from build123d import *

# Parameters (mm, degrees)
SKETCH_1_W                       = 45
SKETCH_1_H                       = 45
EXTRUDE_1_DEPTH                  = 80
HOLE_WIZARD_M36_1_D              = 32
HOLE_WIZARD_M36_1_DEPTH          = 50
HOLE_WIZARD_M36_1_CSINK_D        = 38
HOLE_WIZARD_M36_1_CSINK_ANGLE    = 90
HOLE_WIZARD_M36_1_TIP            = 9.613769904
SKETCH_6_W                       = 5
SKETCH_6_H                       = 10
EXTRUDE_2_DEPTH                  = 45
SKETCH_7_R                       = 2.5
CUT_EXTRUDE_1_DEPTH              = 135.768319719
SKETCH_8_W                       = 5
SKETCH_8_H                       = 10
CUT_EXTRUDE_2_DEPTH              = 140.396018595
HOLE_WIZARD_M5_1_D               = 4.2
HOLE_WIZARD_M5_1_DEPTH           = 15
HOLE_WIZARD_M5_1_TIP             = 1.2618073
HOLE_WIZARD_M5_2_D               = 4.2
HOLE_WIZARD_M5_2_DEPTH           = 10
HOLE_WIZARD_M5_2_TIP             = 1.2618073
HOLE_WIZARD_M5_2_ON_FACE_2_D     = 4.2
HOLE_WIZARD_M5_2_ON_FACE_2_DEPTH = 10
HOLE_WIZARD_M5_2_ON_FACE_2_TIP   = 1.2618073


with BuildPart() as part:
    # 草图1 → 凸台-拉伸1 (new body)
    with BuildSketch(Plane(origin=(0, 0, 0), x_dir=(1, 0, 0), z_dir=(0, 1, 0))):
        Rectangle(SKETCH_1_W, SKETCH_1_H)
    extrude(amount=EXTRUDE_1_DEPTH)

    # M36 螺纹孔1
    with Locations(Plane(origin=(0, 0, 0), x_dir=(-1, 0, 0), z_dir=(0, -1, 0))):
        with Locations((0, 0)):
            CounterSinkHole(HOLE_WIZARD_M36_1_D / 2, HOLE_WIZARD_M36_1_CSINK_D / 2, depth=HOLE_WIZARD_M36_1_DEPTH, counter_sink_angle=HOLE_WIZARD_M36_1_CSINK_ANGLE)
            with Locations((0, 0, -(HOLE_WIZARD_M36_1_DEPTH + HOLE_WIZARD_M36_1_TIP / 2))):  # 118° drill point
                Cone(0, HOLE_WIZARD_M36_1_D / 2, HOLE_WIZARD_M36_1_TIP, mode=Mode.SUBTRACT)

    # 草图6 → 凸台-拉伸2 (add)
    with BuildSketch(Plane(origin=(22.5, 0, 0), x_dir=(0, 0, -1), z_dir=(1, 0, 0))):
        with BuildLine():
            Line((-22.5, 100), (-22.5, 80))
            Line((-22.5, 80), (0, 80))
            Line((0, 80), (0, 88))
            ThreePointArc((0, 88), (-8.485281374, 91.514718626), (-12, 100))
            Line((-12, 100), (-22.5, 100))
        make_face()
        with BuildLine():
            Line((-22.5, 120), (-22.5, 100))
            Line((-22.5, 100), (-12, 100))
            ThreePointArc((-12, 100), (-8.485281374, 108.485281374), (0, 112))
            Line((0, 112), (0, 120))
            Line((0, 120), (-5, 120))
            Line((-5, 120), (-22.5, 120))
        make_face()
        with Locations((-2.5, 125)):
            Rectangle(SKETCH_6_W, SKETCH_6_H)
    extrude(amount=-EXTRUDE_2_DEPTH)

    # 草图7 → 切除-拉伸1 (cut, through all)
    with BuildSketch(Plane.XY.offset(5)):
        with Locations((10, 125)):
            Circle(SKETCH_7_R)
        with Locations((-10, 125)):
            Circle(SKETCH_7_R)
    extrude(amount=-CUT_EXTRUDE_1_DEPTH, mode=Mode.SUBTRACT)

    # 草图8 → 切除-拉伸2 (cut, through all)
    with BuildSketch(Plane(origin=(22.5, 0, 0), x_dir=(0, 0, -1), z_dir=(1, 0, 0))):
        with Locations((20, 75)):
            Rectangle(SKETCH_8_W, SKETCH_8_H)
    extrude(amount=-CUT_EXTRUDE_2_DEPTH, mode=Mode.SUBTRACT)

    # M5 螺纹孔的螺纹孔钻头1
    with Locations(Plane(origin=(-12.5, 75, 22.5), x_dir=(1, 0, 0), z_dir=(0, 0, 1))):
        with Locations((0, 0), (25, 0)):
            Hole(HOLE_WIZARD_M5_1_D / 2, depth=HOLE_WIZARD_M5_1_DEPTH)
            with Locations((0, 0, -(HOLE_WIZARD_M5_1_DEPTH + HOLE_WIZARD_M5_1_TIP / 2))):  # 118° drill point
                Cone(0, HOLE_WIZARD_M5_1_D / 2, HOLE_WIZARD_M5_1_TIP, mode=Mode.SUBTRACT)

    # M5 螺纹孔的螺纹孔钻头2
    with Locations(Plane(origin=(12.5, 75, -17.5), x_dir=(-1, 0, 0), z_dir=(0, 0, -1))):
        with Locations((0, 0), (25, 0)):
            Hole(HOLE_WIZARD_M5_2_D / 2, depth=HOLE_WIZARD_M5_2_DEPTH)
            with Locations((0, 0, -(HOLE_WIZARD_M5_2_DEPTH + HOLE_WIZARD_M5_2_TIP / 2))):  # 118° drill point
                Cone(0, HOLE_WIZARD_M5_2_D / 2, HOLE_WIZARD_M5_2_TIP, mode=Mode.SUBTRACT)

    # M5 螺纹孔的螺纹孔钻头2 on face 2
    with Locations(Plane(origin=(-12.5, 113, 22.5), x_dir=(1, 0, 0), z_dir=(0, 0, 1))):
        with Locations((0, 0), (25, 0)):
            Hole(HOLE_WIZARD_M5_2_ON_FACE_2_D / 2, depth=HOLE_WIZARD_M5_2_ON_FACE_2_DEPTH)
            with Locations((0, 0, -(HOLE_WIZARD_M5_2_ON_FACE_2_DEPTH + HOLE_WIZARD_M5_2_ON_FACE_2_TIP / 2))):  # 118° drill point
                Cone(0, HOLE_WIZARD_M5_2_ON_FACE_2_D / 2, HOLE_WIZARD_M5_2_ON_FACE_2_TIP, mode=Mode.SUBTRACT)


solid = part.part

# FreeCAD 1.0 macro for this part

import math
import FreeCAD as App
import Part
import Sketcher

V = App.Vector


def add_polygon(sketch, points):
    """Adds a closed chain of lines whose ends are joined by coincident constraints."""
    first, n = sketch.GeometryCount, len(points)
    for a, b in zip(points, points[1:] + points[:1]):
        sketch.addGeometry(Part.LineSegment(App.Vector(*a, 0), App.Vector(*b, 0)), False)
    for i in range(n):
        sketch.addConstraint(Sketcher.Constraint("Coincident", first + i, 2, first + (i + 1) % n, 1))

doc = App.newDocument("Part")
params = doc.addObject("Spreadsheet::Sheet", "Params")
for row, (alias, value) in enumerate([
    ("sketch1_width", "45 mm"),
    ("pad1_length", "80 mm"),
    ("sketch2_diameter", "32 mm"),
    ("hole_diameter", "32 mm"),
    ("hole_depth", "50 mm"),
    ("hole_csink_diameter", "38 mm"),
    ("sketch3_radius", "12 mm"),
    ("sketch3_width", "8 mm"),
    ("sketch3_width2", "18 mm"),
    ("sketch3_width3", "10 mm"),
    ("sketch3_height", "5 mm"),
    ("pad2_length", "45 mm"),
    ("sketch4_diameter", "5 mm"),
    ("sketch5_width", "10 mm"),
    ("sketch5_height", "5 mm"),
    ("sketch6_diameter", "4.2 mm"),
    ("hole2_diameter", "4.2 mm"),
    ("hole2_depth", "15 mm"),
    ("sketch7_diameter", "4.2 mm"),
    ("hole3_diameter", "4.2 mm"),
    ("hole3_depth", "10 mm"),
    ("sketch8_diameter", "4.2 mm"),
    ("hole4_diameter", "4.2 mm"),
    ("hole4_depth", "10 mm"),
], start=1):
    params.set(f"A{row}", alias)
    params.set(f"B{row}", "=" + value)
    params.setAlias(f"B{row}", alias)

body = doc.addObject("PartDesign::Body", "Body")

sketch1 = body.newObject("Sketcher::SketchObject", "Sketch")
sketch1.AttachmentSupport = (doc.getObject("XZ_Plane"), [""])
sketch1.MapMode = "FlatFace"
add_polygon(sketch1, [(-22, -22), (-22, 22), (22, 22), (22, -22)])
sketch1.addConstraint([
    Sketcher.Constraint("Vertical", 0),
    Sketcher.Constraint("Horizontal", 1),
    Sketcher.Constraint("Vertical", 2),
    Sketcher.Constraint("Horizontal", 3),
    Sketcher.Constraint("Symmetric", 0, 2, 2, 2, -1, 1),
    Sketcher.Constraint("Equal", 3, 0),
    Sketcher.Constraint("DistanceX", 1, 1, 1, 2, 45.0),
])
sketch1.setExpression("Constraints[10]", "Params.sketch1_width")
pad1 = body.newObject("PartDesign::Pad", "Pad")
pad1.Profile = sketch1
pad1.setExpression("Length", "Params.pad1_length")
pad1.Reversed = True

sketch2 = body.newObject("Sketcher::SketchObject", "Sketch001")
sketch2.AttachmentSupport = (doc.getObject("XZ_Plane"), [""])
sketch2.MapMode = "FlatFace"
sketch2.addGeometry(Part.Circle(V(0, 0, 0), V(0, 0, 1), 16), False)
sketch2.addConstraint([
    Sketcher.Constraint("Coincident", 0, 3, -1, 1),
    Sketcher.Constraint("Diameter", 0, 32.0),
])
sketch2.setExpression("Constraints[1]", "Params.sketch2_diameter")
doc.recompute()
hole = body.newObject("PartDesign::Hole", "Hole")
hole.Profile = sketch2
hole.ThreadType = "None"
hole.setExpression("Diameter", "Params.hole_diameter")
hole.DepthType = "Dimension"
hole.setExpression("Depth", "Params.hole_depth")
hole.DrillPoint = "Angled"
hole.DrillPointAngle = 118
hole.HoleCutType = "Countersink"
hole.setExpression("HoleCutDiameter", "Params.hole_csink_diameter")
hole.HoleCutCountersinkAngle = 90

sketch3 = body.newObject("Sketcher::SketchObject", "Sketch002")
sketch3.AttachmentSupport = (doc.getObject("YZ_Plane"), [""])
sketch3.MapMode = "FlatFace"
sketch3.AttachmentOffset = App.Placement(V(0, 0, 22.5), App.Rotation())
sketch3.addGeometry([
    Part.LineSegment(V(80, 22, 0), V(80, 0, 0)),
    Part.LineSegment(V(80, 0, 0), V(88, 0, 0)),
    Part.ArcOfCircle(Part.Circle(V(100, 0, 0), V(0, 0, 1), 12), math.radians(90), math.radians(180)),
    Part.ArcOfCircle(Part.Circle(V(100, 0, 0), V(0, 0, 1), 12), math.radians(0), math.radians(90)),
    Part.LineSegment(V(112, 0, 0), V(130, 0, 0)),
    Part.LineSegment(V(130, 0, 0), V(130, 5, 0)),
    Part.LineSegment(V(130, 5, 0), V(120, 5, 0)),
    Part.LineSegment(V(120, 5, 0), V(120, 22, 0)),
    Part.LineSegment(V(120, 22, 0), V(80, 22, 0)),
], False)
sketch3.addConstraint([
    Sketcher.Constraint("Coincident", 0, 2, 1, 1),
    Sketcher.Constraint("Coincident", 1, 2, 2, 2),
    Sketcher.Constraint("Tangent", 2, 1, 3, 2),
    Sketcher.Constraint("Coincident", 3, 1, 4, 1),
    Sketcher.Constraint("Coincident", 4, 2, 5, 1),
    Sketcher.Constraint("Coincident", 5, 2, 6, 1),
    Sketcher.Constraint("Coincident", 6, 2, 7, 1),
    Sketcher.Constraint("Coincident", 7, 2, 8, 1),
    Sketcher.Constraint("Coincident", 8, 2, 0, 1),
    Sketcher.Constraint("Vertical", 0),
    Sketcher.Constraint("Horizontal", 1),
    Sketcher.Constraint("Horizontal", 4),
    Sketcher.Constraint("Vertical", 5),
    Sketcher.Constraint("Horizontal", 6),
    Sketcher.Constraint("Vertical", 7),
    Sketcher.Constraint("Horizontal", 8),
    Sketcher.Constraint("Equal", 2, 3),
    Sketcher.Constraint("PointOnObject", 2, 3, -1),
    Sketcher.Constraint("PointOnObject", 0, 2, -1),
    Sketcher.Constraint("PointOnObject", 3, 1, -1),
    Sketcher.Constraint("Vertical", 3, 3, 2, 1),
    Sketcher.Constraint("Radius", 2, 12.0),
    Sketcher.Constraint("DistanceX", 1, 1, 1, 2, 8.0),
    Sketcher.Constraint("DistanceX", 4, 1, 4, 2, 18.0),
    Sketcher.Constraint("DistanceX", 6, 2, 6, 1, 10.0),
    Sketcher.Constraint("DistanceY", 5, 1, 5, 2, 5.0),
    Sketcher.Constraint("DistanceY", 0, 2, 0, 1, 22.5),
    Sketcher.Constraint("DistanceX", -1, 1, 2, 3, 100.0),
])
sketch3.setExpression("Constraints[21]", "Params.sketch3_radius")
sketch3.setExpression("Constraints[22]", "Params.sketch3_width")
sketch3.setExpression("Constraints[23]", "Params.sketch3_width2")
sketch3.setExpression("Constraints[24]", "Params.sketch3_width3")
sketch3.setExpression("Constraints[25]", "Params.sketch3_height")
pad2 = body.newObject("PartDesign::Pad", "Pad001")
pad2.Profile = sketch3
pad2.setExpression("Length", "Params.pad2_length")
pad2.Reversed = True

sketch4 = body.newObject("Sketcher::SketchObject", "Sketch003")
sketch4.AttachmentSupport = (doc.getObject("XY_Plane"), [""])
sketch4.MapMode = "FlatFace"
sketch4.AttachmentOffset = App.Placement(V(0, 0, 5), App.Rotation())
sketch4.addGeometry([
    Part.Circle(V(10, 125, 0), V(0, 0, 1), 2.5),
    Part.Circle(V(-10, 125, 0), V(0, 0, 1), 2.5),
], False)
sketch4.addConstraint([
    Sketcher.Constraint("Equal", 0, 1),
    Sketcher.Constraint("Symmetric", 0, 3, 1, 3, -2),
    Sketcher.Constraint("Diameter", 0, 5.0),
    Sketcher.Constraint("DistanceX", -1, 1, 0, 3, 10.0),
    Sketcher.Constraint("DistanceY", -1, 1, 0, 3, 125.0),
])
sketch4.setExpression("Constraints[2]", "Params.sketch4_diameter")
pocket1 = body.newObject("PartDesign::Pocket", "Pocket")
pocket1.Profile = sketch4
pocket1.Type = "ThroughAll"

sketch5 = body.newObject("Sketcher::SketchObject", "Sketch004")
sketch5.AttachmentSupport = (doc.getObject("YZ_Plane"), [""])
sketch5.MapMode = "FlatFace"
sketch5.AttachmentOffset = App.Placement(V(0, 0, 22.5), App.Rotation())
add_polygon(sketch5, [(80, -18), (70, -18), (70, -22), (80, -22)])
sketch5.addConstraint([
    Sketcher.Constraint("Horizontal", 0),
    Sketcher.Constraint("Vertical", 1),
    Sketcher.Constraint("Horizontal", 2),
    Sketcher.Constraint("Vertical", 3),
    Sketcher.Constraint("DistanceX", 0, 2, 0, 1, 10.0),
    Sketcher.Constraint("DistanceY", 1, 2, 1, 1, 5.0),
    Sketcher.Constraint("DistanceX", -1, 1, 0, 2, 70.0),
    Sketcher.Constraint("DistanceY", 0, 2, -1, 1, 17.5),
])
sketch5.setExpression("Constraints[8]", "Params.sketch5_width")
sketch5.setExpression("Constraints[9]", "Params.sketch5_height")
pocket2 = body.newObject("PartDesign::Pocket", "Pocket001")
pocket2.Profile = sketch5
pocket2.Type = "ThroughAll"

sketch6 = body.newObject("Sketcher::SketchObject", "Sketch005")
sketch6.AttachmentSupport = (doc.getObject("XY_Plane"), [""])
sketch6.MapMode = "FlatFace"
sketch6.AttachmentOffset = App.Placement(V(0, 0, 22.5), App.Rotation())
sketch6.addGeometry([
    Part.Circle(V(-12.5, 75, 0), V(0, 0, 1), 2.1),
    Part.Circle(V(12.5, 75, 0), V(0, 0, 1), 2.1),
], False)
sketch6.addConstraint([
    Sketcher.Constraint("Equal", 0, 1),
    Sketcher.Constraint("Symmetric", 0, 3, 1, 3, -2),
    Sketcher.Constraint("Diameter", 0, 4.2),
    Sketcher.Constraint("DistanceY", -1, 1, 0, 3, 75.0),
    Sketcher.Constraint("DistanceX", 0, 3, 1, 3, 25.0),
])
sketch6.setExpression("Constraints[2]", "Params.sketch6_diameter")
doc.recompute()
hole2 = body.newObject("PartDesign::Hole", "Hole001")
hole2.Profile = sketch6
hole2.ThreadType = "None"
hole2.setExpression("Diameter", "Params.hole2_diameter")
hole2.DepthType = "Dimension"
hole2.setExpression("Depth", "Params.hole2_depth")
hole2.DrillPoint = "Angled"
hole2.DrillPointAngle = 118

sketch7 = body.newObject("Sketcher::SketchObject", "Sketch006")
sketch7.AttachmentSupport = (doc.getObject("XY_Plane"), [""])
sketch7.MapMode = "FlatFace"
sketch7.AttachmentOffset = App.Placement(V(0, 0, -17.5), App.Rotation())
sketch7.addGeometry([
    Part.Circle(V(12.5, 75, 0), V(0, 0, 1), 2.1),
    Part.Circle(V(-12.5, 75, 0), V(0, 0, 1), 2.1),
], False)
sketch7.addConstraint([
    Sketcher.Constraint("Equal", 0, 1),
    Sketcher.Constraint("Symmetric", 0, 3, 1, 3, -2),
    Sketcher.Constraint("Diameter", 0, 4.2),
    Sketcher.Constraint("DistanceY", -1, 1, 0, 3, 75.0),
    Sketcher.Constraint("DistanceX", 1, 3, 0, 3, 25.0),
])
sketch7.setExpression("Constraints[2]", "Params.sketch7_diameter")
doc.recompute()
hole3 = body.newObject("PartDesign::Hole", "Hole002")
hole3.Profile = sketch7
hole3.ThreadType = "None"
hole3.setExpression("Diameter", "Params.hole3_diameter")
hole3.DepthType = "Dimension"
hole3.setExpression("Depth", "Params.hole3_depth")
hole3.DrillPoint = "Angled"
hole3.DrillPointAngle = 118
hole3.Reversed = True

sketch8 = body.newObject("Sketcher::SketchObject", "Sketch007")
sketch8.AttachmentSupport = (doc.getObject("XY_Plane"), [""])
sketch8.MapMode = "FlatFace"
sketch8.AttachmentOffset = App.Placement(V(0, 0, 22.5), App.Rotation())
sketch8.addGeometry([
    Part.Circle(V(-12.5, 113, 0), V(0, 0, 1), 2.1),
    Part.Circle(V(12.5, 113, 0), V(0, 0, 1), 2.1),
], False)
sketch8.addConstraint([
    Sketcher.Constraint("Equal", 0, 1),
    Sketcher.Constraint("Symmetric", 0, 3, 1, 3, -2),
    Sketcher.Constraint("Diameter", 0, 4.2),
    Sketcher.Constraint("DistanceY", -1, 1, 0, 3, 113.0),
    Sketcher.Constraint("DistanceX", 0, 3, 1, 3, 25.0),
])
sketch8.setExpression("Constraints[2]", "Params.sketch8_diameter")
doc.recompute()
hole4 = body.newObject("PartDesign::Hole", "Hole003")
hole4.Profile = sketch8
hole4.ThreadType = "None"
hole4.setExpression("Diameter", "Params.hole4_diameter")
hole4.DepthType = "Dimension"
hole4.setExpression("Depth", "Params.hole4_depth")
hole4.DrillPoint = "Angled"
hole4.DrillPointAngle = 118

doc.recompute()
